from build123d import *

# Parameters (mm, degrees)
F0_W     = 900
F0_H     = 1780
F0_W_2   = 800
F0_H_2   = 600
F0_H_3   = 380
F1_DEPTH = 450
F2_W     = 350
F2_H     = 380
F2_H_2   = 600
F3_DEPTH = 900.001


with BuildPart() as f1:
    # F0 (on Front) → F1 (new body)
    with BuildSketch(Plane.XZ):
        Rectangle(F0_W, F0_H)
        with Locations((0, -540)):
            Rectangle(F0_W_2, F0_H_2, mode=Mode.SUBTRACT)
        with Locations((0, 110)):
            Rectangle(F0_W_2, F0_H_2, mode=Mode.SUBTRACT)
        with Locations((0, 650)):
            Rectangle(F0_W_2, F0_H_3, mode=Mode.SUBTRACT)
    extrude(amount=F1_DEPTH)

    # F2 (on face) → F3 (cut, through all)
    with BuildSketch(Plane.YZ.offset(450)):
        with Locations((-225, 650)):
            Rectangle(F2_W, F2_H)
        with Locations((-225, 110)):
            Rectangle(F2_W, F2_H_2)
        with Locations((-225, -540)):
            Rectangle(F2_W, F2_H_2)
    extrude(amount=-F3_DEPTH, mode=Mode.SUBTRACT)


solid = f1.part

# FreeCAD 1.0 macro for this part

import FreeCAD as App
import Part
import Sketcher
from FreeCAD import Vector
Q = App.Units.Quantity


def add_polygon(sketch, points):
    """Adds a closed chain of lines whose ends are joined by coincident constraints."""
    first, n = sketch.GeometryCount, len(points)
    for a, b in zip(points, points[1:] + points[:1]):
        sketch.addGeometry(Part.LineSegment(App.Vector(*a, 0), App.Vector(*b, 0)), False)
    for i in range(n):
        sketch.addConstraint(Sketcher.Constraint("Coincident", first + i, 2, first + (i + 1) % n, 1))

doc = App.newDocument("Part")
body = doc.addObject("PartDesign::Body", "Body")

# Sketch on XZ plane
sketch1 = body.newObject("Sketcher::SketchObject", "Sketch")
sketch1.AttachmentSupport = (doc.getObject("XZ_Plane"), [""])
sketch1.MapMode = "FlatFace"
add_polygon(sketch1, [(-450, 890), (-450, -890), (450, -890), (450, 890)])  # lines 0-3
add_polygon(sketch1, [(400, -840), (-400, -840), (-400, -240), (400, -240)])  # lines 4-7
add_polygon(sketch1, [(400, -190), (-400, -190), (-400, 410), (400, 410)])  # lines 8-11
add_polygon(sketch1, [(400, 460), (-400, 460), (-400, 840), (400, 840)])  # lines 12-15
sketch1.addConstraint([
    Sketcher.Constraint("Vertical", 0),
    Sketcher.Constraint("Horizontal", 1),
    Sketcher.Constraint("Vertical", 2),
    Sketcher.Constraint("Horizontal", 3),
    Sketcher.Constraint("Horizontal", 4),
    Sketcher.Constraint("Vertical", 5),
    Sketcher.Constraint("Horizontal", 6),
    Sketcher.Constraint("Vertical", 7),
    Sketcher.Constraint("Horizontal", 8),
    Sketcher.Constraint("Vertical", 9),
    Sketcher.Constraint("Horizontal", 10),
    Sketcher.Constraint("Vertical", 11),
    Sketcher.Constraint("Horizontal", 12),
    Sketcher.Constraint("Vertical", 13),
    Sketcher.Constraint("Horizontal", 14),
    Sketcher.Constraint("Vertical", 15),
    Sketcher.Constraint("Symmetric", 0, 2, 2, 2, -1, 1),
    Sketcher.Constraint("Symmetric", 7, 2, 13, 2, -1, 1),
    Sketcher.Constraint("Vertical", 5, 2, 8, 2),
    Sketcher.Constraint("Vertical", 7, 2, 10, 2),
    Sketcher.Constraint("Vertical", 9, 2, 12, 2),
    Sketcher.Constraint("Vertical", 11, 2, 14, 2),
    Sketcher.Constraint("Equal", 7, 9),
    Sketcher.Constraint("DistanceX", 1, 1, 1, 2, Q("900 mm")),
    Sketcher.Constraint("DistanceX", 4, 2, 4, 1, Q("800 mm")),
    Sketcher.Constraint("DistanceY", 0, 2, 0, 1, Q("1780 mm")),
    Sketcher.Constraint("DistanceY", 5, 1, 5, 2, Q("600 mm")),
    Sketcher.Constraint("DistanceY", 13, 1, 13, 2, Q("380 mm")),
    Sketcher.Constraint("DistanceY", 4, 2, -1, 1, Q("840 mm")),
    Sketcher.Constraint("DistanceY", 8, 2, -1, 1, Q("190 mm")),
])
pad1 = body.newObject("PartDesign::Pad", "Pad")
pad1.Profile = sketch1
pad1.Length = 450

# Sketch on YZ plane
sketch2 = body.newObject("Sketcher::SketchObject", "Sketch001")
sketch2.AttachmentSupport = (doc.getObject("YZ_Plane"), [""])
sketch2.MapMode = "FlatFace"
sketch2.AttachmentOffset = App.Placement(Vector(0, 0, 450), App.Rotation())
add_polygon(sketch2, [(-400, 840), (-400, 460), (-50, 460), (-50, 840)])  # lines 0-3
add_polygon(sketch2, [(-400, 410), (-400, -190), (-50, -190), (-50, 410)])  # lines 4-7
add_polygon(sketch2, [(-400, -240), (-400, -840), (-50, -840), (-50, -240)])  # lines 8-11
sketch2.addConstraint([
    Sketcher.Constraint("Vertical", 0),
    Sketcher.Constraint("Horizontal", 1),
    Sketcher.Constraint("Vertical", 2),
    Sketcher.Constraint("Horizontal", 3),
    Sketcher.Constraint("Vertical", 4),
    Sketcher.Constraint("Horizontal", 5),
    Sketcher.Constraint("Vertical", 6),
    Sketcher.Constraint("Horizontal", 7),
    Sketcher.Constraint("Vertical", 8),
    Sketcher.Constraint("Horizontal", 9),
    Sketcher.Constraint("Vertical", 10),
    Sketcher.Constraint("Horizontal", 11),
    Sketcher.Constraint("Symmetric", 3, 2, 8, 2, -1),
    Sketcher.Constraint("Vertical", 3, 2, 4, 2),
    Sketcher.Constraint("Vertical", 2, 2, 5, 2),
    Sketcher.Constraint("Vertical", 6, 2, 9, 2),
    Sketcher.Constraint("Equal", 6, 8),
    Sketcher.Constraint("DistanceX", 1, 1, 1, 2, Q("350 mm")),
    Sketcher.Constraint("DistanceY", 0, 2, 0, 1, Q("380 mm")),
    Sketcher.Constraint("DistanceY", 4, 2, 4, 1, Q("600 mm")),
    Sketcher.Constraint("DistanceX", 0, 2, -1, 1, Q("400 mm")),
    Sketcher.Constraint("DistanceY", -1, 1, 0, 2, Q("460 mm")),
    Sketcher.Constraint("DistanceY", 4, 2, -1, 1, Q("190 mm")),
])
pocket1 = body.newObject("PartDesign::Pocket", "Pocket")
pocket1.Profile = sketch2
pocket1.Type = "ThroughAll"

doc.recompute()
